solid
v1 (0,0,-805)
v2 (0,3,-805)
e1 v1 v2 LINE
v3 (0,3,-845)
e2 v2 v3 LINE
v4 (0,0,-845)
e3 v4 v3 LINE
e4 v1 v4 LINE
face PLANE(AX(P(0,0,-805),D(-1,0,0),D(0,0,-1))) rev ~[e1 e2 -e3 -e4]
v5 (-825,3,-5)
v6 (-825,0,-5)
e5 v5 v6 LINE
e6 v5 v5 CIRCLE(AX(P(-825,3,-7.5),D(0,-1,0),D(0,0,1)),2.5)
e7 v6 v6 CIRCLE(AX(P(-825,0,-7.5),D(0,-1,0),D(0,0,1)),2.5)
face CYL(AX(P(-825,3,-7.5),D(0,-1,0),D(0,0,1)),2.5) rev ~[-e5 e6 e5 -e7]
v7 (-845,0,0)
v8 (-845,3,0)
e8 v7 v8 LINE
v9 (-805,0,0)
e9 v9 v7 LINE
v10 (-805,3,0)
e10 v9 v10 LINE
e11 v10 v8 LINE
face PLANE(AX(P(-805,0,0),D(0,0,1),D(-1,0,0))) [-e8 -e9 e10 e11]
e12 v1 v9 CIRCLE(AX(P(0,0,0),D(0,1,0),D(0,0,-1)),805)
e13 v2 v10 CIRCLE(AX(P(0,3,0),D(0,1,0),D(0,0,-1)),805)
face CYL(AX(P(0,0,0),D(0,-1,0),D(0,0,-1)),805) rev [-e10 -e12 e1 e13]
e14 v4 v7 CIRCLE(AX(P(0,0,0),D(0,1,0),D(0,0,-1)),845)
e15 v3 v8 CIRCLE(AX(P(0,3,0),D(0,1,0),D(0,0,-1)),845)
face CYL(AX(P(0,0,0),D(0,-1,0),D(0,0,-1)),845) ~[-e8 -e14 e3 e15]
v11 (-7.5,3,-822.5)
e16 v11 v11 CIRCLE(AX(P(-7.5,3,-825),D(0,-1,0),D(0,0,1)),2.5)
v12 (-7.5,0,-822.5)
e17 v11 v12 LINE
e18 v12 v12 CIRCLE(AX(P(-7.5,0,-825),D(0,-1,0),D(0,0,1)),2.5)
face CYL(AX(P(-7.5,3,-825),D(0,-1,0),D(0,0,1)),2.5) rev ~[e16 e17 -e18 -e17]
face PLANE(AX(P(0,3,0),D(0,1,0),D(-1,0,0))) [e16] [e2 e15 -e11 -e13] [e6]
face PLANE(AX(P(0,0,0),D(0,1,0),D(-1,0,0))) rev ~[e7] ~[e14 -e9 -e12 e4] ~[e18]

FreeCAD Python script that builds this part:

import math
import FreeCAD as App
import Part
import Sketcher
Q = App.Units.Quantity

doc = App.newDocument("Part")
params = doc.addObject("Spreadsheet::Sheet", "Params")
for row, (alias, value) in enumerate([
    ("sketch1_radius", "805 mm"),
    ("sketch1_radius2", "845 mm"),
    ("pad1_length", "3 mm"),
    ("sketch2_diameter", "5 mm"),
    ("hole_diameter", "5 mm"),
], start=1):
    params.set(f"A{row}", alias)
    params.set(f"B{row}", "=" + value)
    params.setAlias(f"B{row}", alias)

body = doc.addObject("PartDesign::Body", "Body")

# Sketch on XZ plane
sketch1 = body.newObject("Sketcher::SketchObject", "Sketch")
sketch1.AttachmentSupport = (doc.getObject("XZ_Plane"), [""])
sketch1.MapMode = "FlatFace"
sketch1.addGeometry([
    Part.ArcOfCircle(Part.Circle(App.Vector(0, 0, 0), App.Vector(0, 0, 1), 805), math.radians(180), math.radians(270)),
    Part.LineSegment(App.Vector(0, -805, 0), App.Vector(0, -845, 0)),
    Part.ArcOfCircle(Part.Circle(App.Vector(0, 0, 0), App.Vector(0, 0, 1), 845), math.radians(180), math.radians(270)),
    Part.LineSegment(App.Vector(-845, 0, 0), App.Vector(-805, 0, 0)),
], False)
sketch1.addConstraint([
    Sketcher.Constraint("Coincident", 0, 2, 1, 1),
    Sketcher.Constraint("Coincident", 1, 2, 2, 2),
    Sketcher.Constraint("Coincident", 2, 1, 3, 1),
    Sketcher.Constraint("Coincident", 3, 2, 0, 1),
    Sketcher.Constraint("Vertical", 1),
    Sketcher.Constraint("Horizontal", 3),
    Sketcher.Constraint("Coincident", 0, 3, -1, 1),
    Sketcher.Constraint("Coincident", 2, 3, -1, 1),
    Sketcher.Constraint("PointOnObject", 1, 2, -2),
    Sketcher.Constraint("PointOnObject", 3, 2, -1),
    Sketcher.Constraint("Radius", 0, Q("805 mm")),
    Sketcher.Constraint("Radius", 2, Q("845 mm")),
])
sketch1.setExpression("Constraints[10]", "Params.sketch1_radius")
sketch1.setExpression("Constraints[11]", "Params.sketch1_radius2")
pad1 = body.newObject("PartDesign::Pad", "Pad")
pad1.Profile = sketch1
pad1.setExpression("Length", "Params.pad1_length")
pad1.Reversed = True

# Sketch on XZ plane
sketch2 = body.newObject("Sketcher::SketchObject", "Sketch001")
sketch2.AttachmentSupport = (doc.getObject("XZ_Plane"), [""])
sketch2.MapMode = "FlatFace"
sketch2.AttachmentOffset = App.Placement(App.Vector(0, 0, -3), App.Rotation())
sketch2.addGeometry([
    Part.Circle(App.Vector(-825, -7.5, 0), App.Vector(0, 0, 1), 2.5),
    Part.Circle(App.Vector(-7.5, -825, 0), App.Vector(0, 0, 1), 2.5),
], False)
sketch2.addConstraint([
    Sketcher.Constraint("Equal", 0, 1),
    Sketcher.Constraint("Diameter", 0, Q("5 mm")),
    Sketcher.Constraint("DistanceX", 0, 3, -1, 1, Q("825 mm")),
    Sketcher.Constraint("DistanceY", 1, 3, -1, 1, Q("825 mm")),
    Sketcher.Constraint("DistanceY", 0, 3, -1, 1, Q("7.5 mm")),
    Sketcher.Constraint("DistanceX", 1, 3, -1, 1, Q("7.5 mm")),
])
sketch2.setExpression("Constraints[1]", "Params.sketch2_diameter")
doc.recompute()
hole = body.newObject("PartDesign::Hole", "Hole")
hole.Profile = sketch2
hole.ThreadType = "None"
hole.setExpression("Diameter", "Params.hole_diameter")
hole.DepthType = "ThroughAll"
hole.Reversed = True

doc.recompute()
